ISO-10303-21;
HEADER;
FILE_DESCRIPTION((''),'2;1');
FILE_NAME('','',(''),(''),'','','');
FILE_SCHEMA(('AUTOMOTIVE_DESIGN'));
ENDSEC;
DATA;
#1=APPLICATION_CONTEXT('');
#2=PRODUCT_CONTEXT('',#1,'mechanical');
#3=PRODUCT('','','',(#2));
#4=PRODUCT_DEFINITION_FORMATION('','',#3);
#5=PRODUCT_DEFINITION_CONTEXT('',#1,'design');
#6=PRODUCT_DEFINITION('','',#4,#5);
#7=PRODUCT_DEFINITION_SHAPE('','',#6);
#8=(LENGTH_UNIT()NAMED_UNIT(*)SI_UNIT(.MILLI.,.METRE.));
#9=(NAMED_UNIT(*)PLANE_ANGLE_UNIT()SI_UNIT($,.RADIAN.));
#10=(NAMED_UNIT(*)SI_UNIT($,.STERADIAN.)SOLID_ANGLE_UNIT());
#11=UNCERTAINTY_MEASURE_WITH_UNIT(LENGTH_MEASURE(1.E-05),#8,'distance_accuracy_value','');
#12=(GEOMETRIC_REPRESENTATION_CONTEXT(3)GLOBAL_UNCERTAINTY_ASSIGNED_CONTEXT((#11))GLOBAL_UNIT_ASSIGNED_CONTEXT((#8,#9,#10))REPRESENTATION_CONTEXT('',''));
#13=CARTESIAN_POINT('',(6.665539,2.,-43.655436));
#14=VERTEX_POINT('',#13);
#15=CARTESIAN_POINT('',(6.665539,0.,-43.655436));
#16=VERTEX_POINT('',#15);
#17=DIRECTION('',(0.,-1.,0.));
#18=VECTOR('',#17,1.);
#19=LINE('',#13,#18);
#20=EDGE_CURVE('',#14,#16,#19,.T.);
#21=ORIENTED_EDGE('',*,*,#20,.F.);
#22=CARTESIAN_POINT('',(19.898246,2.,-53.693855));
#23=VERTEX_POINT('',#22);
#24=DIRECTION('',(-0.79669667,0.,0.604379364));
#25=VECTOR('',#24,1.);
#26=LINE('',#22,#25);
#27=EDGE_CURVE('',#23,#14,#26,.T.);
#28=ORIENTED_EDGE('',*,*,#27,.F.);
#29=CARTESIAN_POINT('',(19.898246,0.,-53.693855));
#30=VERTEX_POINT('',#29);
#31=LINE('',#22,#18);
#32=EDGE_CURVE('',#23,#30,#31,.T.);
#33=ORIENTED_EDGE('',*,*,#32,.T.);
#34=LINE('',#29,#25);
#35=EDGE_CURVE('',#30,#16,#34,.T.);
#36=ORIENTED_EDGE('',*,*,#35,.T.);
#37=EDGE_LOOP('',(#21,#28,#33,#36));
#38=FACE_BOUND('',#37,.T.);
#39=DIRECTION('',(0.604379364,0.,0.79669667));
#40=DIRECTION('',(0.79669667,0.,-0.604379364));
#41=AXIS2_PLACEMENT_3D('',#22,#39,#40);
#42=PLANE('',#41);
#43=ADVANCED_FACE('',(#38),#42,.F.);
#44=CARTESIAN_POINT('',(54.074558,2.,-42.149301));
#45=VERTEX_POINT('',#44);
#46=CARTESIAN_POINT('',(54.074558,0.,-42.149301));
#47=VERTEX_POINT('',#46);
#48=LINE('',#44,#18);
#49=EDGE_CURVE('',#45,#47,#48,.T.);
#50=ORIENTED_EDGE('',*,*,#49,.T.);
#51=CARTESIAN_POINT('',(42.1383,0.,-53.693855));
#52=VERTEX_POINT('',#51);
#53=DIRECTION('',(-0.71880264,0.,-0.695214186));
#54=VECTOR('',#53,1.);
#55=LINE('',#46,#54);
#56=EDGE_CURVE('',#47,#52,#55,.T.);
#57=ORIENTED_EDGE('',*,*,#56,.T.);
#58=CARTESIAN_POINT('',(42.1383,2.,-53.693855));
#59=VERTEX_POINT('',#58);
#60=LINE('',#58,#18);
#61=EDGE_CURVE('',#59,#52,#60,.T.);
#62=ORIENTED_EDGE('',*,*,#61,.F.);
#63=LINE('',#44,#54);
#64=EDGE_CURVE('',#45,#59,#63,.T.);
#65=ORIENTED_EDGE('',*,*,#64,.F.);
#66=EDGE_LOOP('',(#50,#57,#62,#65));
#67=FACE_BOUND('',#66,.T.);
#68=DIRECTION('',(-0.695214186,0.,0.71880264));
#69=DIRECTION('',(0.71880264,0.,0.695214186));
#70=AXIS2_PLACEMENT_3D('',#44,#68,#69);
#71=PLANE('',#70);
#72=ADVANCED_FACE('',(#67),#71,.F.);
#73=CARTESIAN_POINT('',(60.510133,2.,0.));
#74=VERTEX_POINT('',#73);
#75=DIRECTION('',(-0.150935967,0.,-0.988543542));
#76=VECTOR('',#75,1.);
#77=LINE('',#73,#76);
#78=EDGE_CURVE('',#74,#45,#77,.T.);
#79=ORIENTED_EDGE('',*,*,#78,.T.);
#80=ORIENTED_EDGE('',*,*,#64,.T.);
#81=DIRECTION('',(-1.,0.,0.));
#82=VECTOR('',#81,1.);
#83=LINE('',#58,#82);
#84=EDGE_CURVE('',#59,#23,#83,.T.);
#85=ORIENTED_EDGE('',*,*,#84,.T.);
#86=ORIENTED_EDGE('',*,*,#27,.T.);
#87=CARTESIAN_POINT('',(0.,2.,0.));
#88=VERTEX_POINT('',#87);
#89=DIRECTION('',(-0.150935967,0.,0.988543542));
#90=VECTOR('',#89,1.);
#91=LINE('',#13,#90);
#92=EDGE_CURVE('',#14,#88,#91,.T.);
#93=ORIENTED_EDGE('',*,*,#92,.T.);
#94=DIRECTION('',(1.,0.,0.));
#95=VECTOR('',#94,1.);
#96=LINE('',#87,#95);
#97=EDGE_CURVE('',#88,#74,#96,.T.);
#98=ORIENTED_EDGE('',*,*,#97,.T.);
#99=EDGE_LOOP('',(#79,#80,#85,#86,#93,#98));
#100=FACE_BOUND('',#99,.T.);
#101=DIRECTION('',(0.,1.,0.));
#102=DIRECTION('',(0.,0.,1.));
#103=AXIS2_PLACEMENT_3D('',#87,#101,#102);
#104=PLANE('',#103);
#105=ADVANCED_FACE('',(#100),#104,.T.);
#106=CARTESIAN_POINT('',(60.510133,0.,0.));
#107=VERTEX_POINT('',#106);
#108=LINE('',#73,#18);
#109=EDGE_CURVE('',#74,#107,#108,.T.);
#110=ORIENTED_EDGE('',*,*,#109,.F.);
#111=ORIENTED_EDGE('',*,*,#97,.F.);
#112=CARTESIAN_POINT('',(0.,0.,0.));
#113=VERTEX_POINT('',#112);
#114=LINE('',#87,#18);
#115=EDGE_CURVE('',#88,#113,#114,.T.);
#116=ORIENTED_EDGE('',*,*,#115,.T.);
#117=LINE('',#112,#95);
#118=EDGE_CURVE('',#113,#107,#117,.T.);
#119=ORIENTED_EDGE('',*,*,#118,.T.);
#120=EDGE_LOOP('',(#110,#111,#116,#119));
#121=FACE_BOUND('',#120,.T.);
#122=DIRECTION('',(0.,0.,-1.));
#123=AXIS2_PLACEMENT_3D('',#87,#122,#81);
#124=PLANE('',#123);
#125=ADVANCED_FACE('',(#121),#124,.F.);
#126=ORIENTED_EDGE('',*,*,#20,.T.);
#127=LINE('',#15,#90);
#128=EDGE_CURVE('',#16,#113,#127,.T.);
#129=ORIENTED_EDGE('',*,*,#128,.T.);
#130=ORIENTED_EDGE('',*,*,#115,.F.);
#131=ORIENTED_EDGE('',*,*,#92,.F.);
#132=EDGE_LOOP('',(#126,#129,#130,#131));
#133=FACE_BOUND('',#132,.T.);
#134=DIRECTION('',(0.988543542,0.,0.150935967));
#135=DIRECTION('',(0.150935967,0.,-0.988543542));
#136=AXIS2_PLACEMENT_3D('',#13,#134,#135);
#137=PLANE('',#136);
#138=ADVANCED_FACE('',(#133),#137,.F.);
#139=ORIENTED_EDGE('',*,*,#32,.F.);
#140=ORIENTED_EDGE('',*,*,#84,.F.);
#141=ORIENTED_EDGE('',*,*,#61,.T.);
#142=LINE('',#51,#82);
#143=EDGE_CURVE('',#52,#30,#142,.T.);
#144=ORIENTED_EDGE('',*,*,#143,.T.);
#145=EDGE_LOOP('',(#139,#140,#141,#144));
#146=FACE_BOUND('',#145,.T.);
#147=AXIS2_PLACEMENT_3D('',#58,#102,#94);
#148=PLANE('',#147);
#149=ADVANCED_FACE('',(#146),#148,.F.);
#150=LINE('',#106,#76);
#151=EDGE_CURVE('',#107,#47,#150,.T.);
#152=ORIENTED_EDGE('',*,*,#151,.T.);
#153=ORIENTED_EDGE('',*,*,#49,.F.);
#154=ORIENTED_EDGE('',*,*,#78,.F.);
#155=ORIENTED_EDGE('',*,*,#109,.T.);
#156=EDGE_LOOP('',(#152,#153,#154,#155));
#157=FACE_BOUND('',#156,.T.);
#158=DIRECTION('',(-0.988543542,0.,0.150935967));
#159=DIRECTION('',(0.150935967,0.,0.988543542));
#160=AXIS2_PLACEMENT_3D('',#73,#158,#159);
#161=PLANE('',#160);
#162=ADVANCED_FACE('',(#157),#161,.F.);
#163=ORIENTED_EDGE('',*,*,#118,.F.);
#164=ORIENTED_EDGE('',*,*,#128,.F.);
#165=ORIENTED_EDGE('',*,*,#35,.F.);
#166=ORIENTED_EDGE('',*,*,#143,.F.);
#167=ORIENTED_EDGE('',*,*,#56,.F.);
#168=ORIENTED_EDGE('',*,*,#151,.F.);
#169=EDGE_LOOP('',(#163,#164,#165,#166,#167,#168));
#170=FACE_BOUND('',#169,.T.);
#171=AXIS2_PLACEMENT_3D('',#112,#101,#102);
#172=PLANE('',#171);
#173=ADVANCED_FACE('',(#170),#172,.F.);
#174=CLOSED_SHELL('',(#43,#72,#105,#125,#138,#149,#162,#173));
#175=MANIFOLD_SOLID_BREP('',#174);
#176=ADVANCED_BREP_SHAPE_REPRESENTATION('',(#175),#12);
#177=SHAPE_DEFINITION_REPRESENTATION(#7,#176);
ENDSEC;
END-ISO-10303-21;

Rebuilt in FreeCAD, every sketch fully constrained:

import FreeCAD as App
import Part
import Sketcher

V = App.Vector
Q = App.Units.Quantity

doc = App.newDocument("Part")
body = doc.addObject("PartDesign::Body", "Body")

# Sketch on XZ plane
sketch1 = body.newObject("Sketcher::SketchObject", "Sketch")
sketch1.AttachmentSupport = (doc.getObject("XZ_Plane"), [""])
sketch1.MapMode = "FlatFace"
sketch1.addGeometry([
    Part.LineSegment(V(60.510133, 0, 0), V(54.074558, -42.149301, 0)),  # 0
    Part.LineSegment(V(54.074558, -42.149301, 0), V(42.1383, -53.693855, 0)),  # 1
    Part.LineSegment(V(42.1383, -53.693855, 0), V(19.898246, -53.693855, 0)),  # 2
    Part.LineSegment(V(19.898246, -53.693855, 0), V(6.665539, -43.655436, 0)),  # 3
    Part.LineSegment(V(6.665539, -43.655436, 0), V(0, 0, 0)),  # 4
    Part.LineSegment(V(0, 0, 0), V(60.510133, 0, 0)),  # 5
], False)
sketch1.addConstraint([
    Sketcher.Constraint("Coincident", 0, 2, 1, 1),
    Sketcher.Constraint("Coincident", 1, 2, 2, 1),
    Sketcher.Constraint("Coincident", 2, 2, 3, 1),
    Sketcher.Constraint("Coincident", 3, 2, 4, 1),
    Sketcher.Constraint("Coincident", 4, 2, 5, 1),
    Sketcher.Constraint("Coincident", 5, 2, 0, 1),
    Sketcher.Constraint("Horizontal", 2),
    Sketcher.Constraint("Horizontal", 5),
    Sketcher.Constraint("Coincident", 4, 2, -1, 1),
    Sketcher.Constraint("DistanceY", 0, 2, -1, 1, Q("42.149301 mm")),
    Sketcher.Constraint("DistanceX", -1, 1, 1, 2, Q("42.1383 mm")),
    Sketcher.Constraint("Distance", 0, Q("42.637779 mm")),
    Sketcher.Constraint("Distance", 4, Q("44.161369 mm")),
    Sketcher.Constraint("DistanceX", 2, 2, 2, 1, Q("22.240054 mm")),
    Sketcher.Constraint("DistanceX", 5, 1, 5, 2, Q("60.510133 mm")),
    Sketcher.Constraint("DistanceX", -1, 1, 3, 2, Q("6.665539 mm")),
    Sketcher.Constraint("DistanceY", 2, 2, 3, 2, Q("10.038419 mm")),
])
pad1 = body.newObject("PartDesign::Pad", "Pad")
pad1.Profile = sketch1
pad1.Length = 2
pad1.Reversed = True

doc.recompute()
